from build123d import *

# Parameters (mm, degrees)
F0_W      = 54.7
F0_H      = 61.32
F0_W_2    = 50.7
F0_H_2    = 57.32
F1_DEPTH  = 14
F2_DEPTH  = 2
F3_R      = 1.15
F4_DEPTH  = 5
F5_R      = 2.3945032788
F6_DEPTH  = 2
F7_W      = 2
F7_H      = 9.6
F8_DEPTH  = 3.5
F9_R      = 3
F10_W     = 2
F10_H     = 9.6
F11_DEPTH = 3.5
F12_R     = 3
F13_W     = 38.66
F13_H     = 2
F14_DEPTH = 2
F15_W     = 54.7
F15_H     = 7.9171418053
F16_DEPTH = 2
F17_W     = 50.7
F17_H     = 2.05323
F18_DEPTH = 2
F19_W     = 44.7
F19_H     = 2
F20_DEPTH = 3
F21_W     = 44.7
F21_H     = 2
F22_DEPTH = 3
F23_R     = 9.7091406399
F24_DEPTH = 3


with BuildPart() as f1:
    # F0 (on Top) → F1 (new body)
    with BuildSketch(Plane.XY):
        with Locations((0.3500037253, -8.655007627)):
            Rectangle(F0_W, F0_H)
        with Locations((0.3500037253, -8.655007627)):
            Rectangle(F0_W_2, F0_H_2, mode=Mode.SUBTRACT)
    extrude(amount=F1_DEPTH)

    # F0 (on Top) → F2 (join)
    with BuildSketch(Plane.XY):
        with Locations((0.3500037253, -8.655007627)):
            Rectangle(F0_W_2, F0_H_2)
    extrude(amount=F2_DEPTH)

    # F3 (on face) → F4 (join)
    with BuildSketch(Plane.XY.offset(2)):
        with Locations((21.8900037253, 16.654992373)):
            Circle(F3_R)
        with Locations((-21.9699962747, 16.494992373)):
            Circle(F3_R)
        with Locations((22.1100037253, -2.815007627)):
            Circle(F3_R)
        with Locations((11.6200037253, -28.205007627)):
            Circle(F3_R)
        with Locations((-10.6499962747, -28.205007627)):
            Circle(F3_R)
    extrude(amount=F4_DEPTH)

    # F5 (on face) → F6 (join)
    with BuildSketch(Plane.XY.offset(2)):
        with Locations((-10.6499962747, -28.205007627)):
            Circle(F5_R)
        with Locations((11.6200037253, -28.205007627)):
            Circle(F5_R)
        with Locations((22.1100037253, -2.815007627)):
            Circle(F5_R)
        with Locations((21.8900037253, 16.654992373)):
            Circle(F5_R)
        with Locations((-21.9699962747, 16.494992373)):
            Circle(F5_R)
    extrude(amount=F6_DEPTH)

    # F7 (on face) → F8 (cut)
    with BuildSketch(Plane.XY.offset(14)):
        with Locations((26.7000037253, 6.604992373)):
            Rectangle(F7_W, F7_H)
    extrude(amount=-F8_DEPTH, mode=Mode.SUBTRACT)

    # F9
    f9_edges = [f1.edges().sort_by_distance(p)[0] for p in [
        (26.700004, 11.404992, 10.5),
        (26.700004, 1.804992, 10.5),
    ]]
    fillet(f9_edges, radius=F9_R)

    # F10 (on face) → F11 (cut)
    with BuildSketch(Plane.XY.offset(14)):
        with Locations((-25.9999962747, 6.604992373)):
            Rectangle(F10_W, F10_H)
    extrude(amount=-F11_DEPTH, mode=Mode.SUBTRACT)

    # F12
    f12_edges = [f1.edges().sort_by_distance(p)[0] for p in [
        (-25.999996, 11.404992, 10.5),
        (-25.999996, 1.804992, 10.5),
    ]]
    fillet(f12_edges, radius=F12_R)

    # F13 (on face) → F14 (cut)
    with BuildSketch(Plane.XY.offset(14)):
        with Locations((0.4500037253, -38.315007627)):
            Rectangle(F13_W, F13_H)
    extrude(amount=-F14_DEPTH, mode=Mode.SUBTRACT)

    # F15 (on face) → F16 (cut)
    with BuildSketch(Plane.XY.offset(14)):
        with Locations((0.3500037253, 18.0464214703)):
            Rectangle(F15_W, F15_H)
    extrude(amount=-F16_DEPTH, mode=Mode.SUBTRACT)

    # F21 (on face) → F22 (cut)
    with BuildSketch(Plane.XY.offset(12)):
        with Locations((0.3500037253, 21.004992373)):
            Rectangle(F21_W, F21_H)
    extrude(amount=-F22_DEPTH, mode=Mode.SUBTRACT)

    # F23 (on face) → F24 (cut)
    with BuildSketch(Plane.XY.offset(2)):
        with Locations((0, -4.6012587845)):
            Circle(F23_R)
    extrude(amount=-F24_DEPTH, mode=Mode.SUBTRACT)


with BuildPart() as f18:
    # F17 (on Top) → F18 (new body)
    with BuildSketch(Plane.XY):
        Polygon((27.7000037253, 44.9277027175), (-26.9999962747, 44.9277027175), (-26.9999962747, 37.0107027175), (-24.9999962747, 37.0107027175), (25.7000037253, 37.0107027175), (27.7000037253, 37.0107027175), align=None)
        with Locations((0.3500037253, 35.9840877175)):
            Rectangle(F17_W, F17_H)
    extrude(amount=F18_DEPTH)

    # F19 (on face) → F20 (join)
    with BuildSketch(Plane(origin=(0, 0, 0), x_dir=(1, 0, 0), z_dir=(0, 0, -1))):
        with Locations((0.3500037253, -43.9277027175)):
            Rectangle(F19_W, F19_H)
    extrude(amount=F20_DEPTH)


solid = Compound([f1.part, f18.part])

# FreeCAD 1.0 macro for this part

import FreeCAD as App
import Part
import Sketcher


def edges_at(feature, points):
    """Names of the edges that pass closest to the given points."""
    edges = feature.Shape.Edges
    near = lambda p: min(range(len(edges)), key=lambda i: edges[i].distToShape(Part.Vertex(*p))[0])
    return sorted({f"Edge{near(p) + 1}" for p in points})


def add_polygon(sketch, points):
    """Adds a closed chain of lines whose ends are joined by coincident constraints."""
    first, n = sketch.GeometryCount, len(points)
    for a, b in zip(points, points[1:] + points[:1]):
        sketch.addGeometry(Part.LineSegment(App.Vector(*a, 0), App.Vector(*b, 0)), False)
    for i in range(n):
        sketch.addConstraint(Sketcher.Constraint("Coincident", first + i, 2, first + (i + 1) % n, 1))

doc = App.newDocument("Part")
params = doc.addObject("Spreadsheet::Sheet", "Params")
for row, (alias, value) in enumerate([
    ("sketch1_width", "54.7 mm"),
    ("sketch1_width2", "50.7 mm"),
    ("sketch1_height", "61.32 mm"),
    ("pad1_length", "14 mm"),
    ("sketch2_width", "50.7 mm"),
    ("sketch2_height", "57.32 mm"),
    ("pad2_length", "2 mm"),
    ("sketch3_diameter", "2.3 mm"),
    ("pad3_length", "5 mm"),
    ("pad4_length", "2 mm"),
    ("sketch5_width", "2 mm"),
    ("sketch5_height", "9.6 mm"),
    ("pocket1_length", "3.5 mm"),
    ("fillet_radius", "3 mm"),
    ("sketch6_width", "2 mm"),
    ("sketch6_height", "9.6 mm"),
    ("pocket2_length", "3.5 mm"),
    ("fillet2_radius", "3 mm"),
    ("sketch7_height", "2 mm"),
    ("sketch7_width", "38.66 mm"),
    ("pocket3_length", "2 mm"),
    ("sketch8_width", "54.7 mm"),
    ("pocket4_length", "2 mm"),
    ("sketch9_height", "2 mm"),
    ("sketch9_width", "44.7 mm"),
    ("pocket5_length", "3 mm"),
    ("pocket6_length", "3 mm"),
    ("sketch11_width", "2 mm"),
    ("sketch11_width2", "54.7 mm"),
    ("pad5_length", "2 mm"),
    ("sketch12_height", "2 mm"),
    ("sketch12_width", "44.7 mm"),
    ("pad6_length", "3 mm"),
], start=1):
    params.set(f"A{row}", alias)
    params.set(f"B{row}", "=" + value)
    params.setAlias(f"B{row}", alias)

body = doc.addObject("PartDesign::Body", "Body")

# Sketch on XY plane
sketch1 = body.newObject("Sketcher::SketchObject", "Sketch")
sketch1.AttachmentSupport = (doc.getObject("XY_Plane"), [""])
sketch1.MapMode = "FlatFace"
add_polygon(sketch1, [(-27, 22), (-27, -39), (28, -39), (28, 22)])  # lines 0-3
add_polygon(sketch1, [(26, -37), (-25, -37), (-25, 20), (26, 20)])  # lines 4-7
sketch1.addConstraint([
    Sketcher.Constraint("Vertical", 0),
    Sketcher.Constraint("Horizontal", 1),
    Sketcher.Constraint("Vertical", 2),
    Sketcher.Constraint("Horizontal", 3),
    Sketcher.Constraint("Horizontal", 4),
    Sketcher.Constraint("Vertical", 5),
    Sketcher.Constraint("Horizontal", 6),
    Sketcher.Constraint("Vertical", 7),
    Sketcher.Constraint("DistanceX", 1, 1, 1, 2, 54.7),
    Sketcher.Constraint("DistanceX", 4, 2, 4, 1, 50.7),
    Sketcher.Constraint("DistanceX", 0, 2, 4, 2, 2.0),
    Sketcher.Constraint("DistanceY", 0, 2, 4, 2, 2.0),
    Sketcher.Constraint("DistanceY", 5, 2, 3, 2, 2.0),
    Sketcher.Constraint("DistanceY", 0, 2, 0, 1, 61.32),
    Sketcher.Constraint("DistanceX", 0, 2, -1, 1, 26.999996),
    Sketcher.Constraint("DistanceY", 0, 2, -1, 1, 39.315008),
])
sketch1.setExpression("Constraints[16]", "Params.sketch1_width")
sketch1.setExpression("Constraints[17]", "Params.sketch1_width2")
sketch1.setExpression("Constraints[21]", "Params.sketch1_height")
pad1 = body.newObject("PartDesign::Pad", "Pad")
pad1.Profile = sketch1
pad1.setExpression("Length", "Params.pad1_length")

# Sketch on XY plane
sketch2 = body.newObject("Sketcher::SketchObject", "Sketch001")
sketch2.AttachmentSupport = (doc.getObject("XY_Plane"), [""])
sketch2.MapMode = "FlatFace"
add_polygon(sketch2, [(-25, 20), (-25, -37), (26, -37), (26, 20)])  # lines 0-3
sketch2.addConstraint([
    Sketcher.Constraint("Vertical", 0),
    Sketcher.Constraint("Horizontal", 1),
    Sketcher.Constraint("Vertical", 2),
    Sketcher.Constraint("Horizontal", 3),
    Sketcher.Constraint("DistanceX", 1, 1, 1, 2, 50.7),
    Sketcher.Constraint("DistanceY", 0, 2, 0, 1, 57.32),
    Sketcher.Constraint("DistanceX", 0, 2, -1, 1, 24.999996),
    Sketcher.Constraint("DistanceY", 0, 2, -1, 1, 37.315008),
])
sketch2.setExpression("Constraints[8]", "Params.sketch2_width")
sketch2.setExpression("Constraints[9]", "Params.sketch2_height")
pad2 = body.newObject("PartDesign::Pad", "Pad001")
pad2.Profile = sketch2
pad2.setExpression("Length", "Params.pad2_length")

# Sketch on XY plane
sketch3 = body.newObject("Sketcher::SketchObject", "Sketch002")
sketch3.AttachmentSupport = (doc.getObject("XY_Plane"), [""])
sketch3.MapMode = "FlatFace"
sketch3.AttachmentOffset = App.Placement(App.Vector(0, 0, 2), App.Rotation())
sketch3.addGeometry([
    Part.Circle(App.Vector(21.9, 16.7, 0), App.Vector(0, 0, 1), 1.1),  # 0
    Part.Circle(App.Vector(-22, 16.5, 0), App.Vector(0, 0, 1), 1.1),  # 1
    Part.Circle(App.Vector(22.1, -2.8, 0), App.Vector(0, 0, 1), 1.1),  # 2
    Part.Circle(App.Vector(11.6, -28.2, 0), App.Vector(0, 0, 1), 1.1),  # 3
    Part.Circle(App.Vector(-10.6, -28.2, 0), App.Vector(0, 0, 1), 1.1),  # 4
], False)
sketch3.addConstraint([
    Sketcher.Constraint("Equal", 0, 1),
    Sketcher.Constraint("Equal", 1, 2),
    Sketcher.Constraint("Equal", 2, 3),
    Sketcher.Constraint("Equal", 3, 4),
    Sketcher.Constraint("Horizontal", 3, 3, 4, 3),
    Sketcher.Constraint("Diameter", 0, 2.3),
    Sketcher.Constraint("DistanceY", 3, 3, 1, 3, 44.7),
    Sketcher.Constraint("DistanceX", 1, 3, 0, 3, 43.86),
    Sketcher.Constraint("DistanceY", 1, 3, 0, 3, 0.16),
    Sketcher.Constraint("DistanceX", 0, 3, 2, 3, 0.22),
    Sketcher.Constraint("DistanceY", 2, 3, 0, 3, 19.47),
    Sketcher.Constraint("DistanceX", 3, 3, 2, 3, 10.49),
    Sketcher.Constraint("DistanceX", 4, 3, 3, 3, 22.27),
    Sketcher.Constraint("DistanceX", -1, 1, 0, 3, 21.890004),
    Sketcher.Constraint("DistanceY", -1, 1, 0, 3, 16.654992),
])
sketch3.setExpression("Constraints[5]", "Params.sketch3_diameter")
pad3 = body.newObject("PartDesign::Pad", "Pad002")
pad3.Profile = sketch3
pad3.setExpression("Length", "Params.pad3_length")

# Sketch on XY plane
sketch4 = body.newObject("Sketcher::SketchObject", "Sketch003")
sketch4.AttachmentSupport = (doc.getObject("XY_Plane"), [""])
sketch4.MapMode = "FlatFace"
sketch4.AttachmentOffset = App.Placement(App.Vector(0, 0, 2), App.Rotation())
sketch4.addGeometry([
    Part.Circle(App.Vector(-10.6, -28.2, 0), App.Vector(0, 0, 1), 2.4),  # 0
    Part.Circle(App.Vector(11.6, -28.2, 0), App.Vector(0, 0, 1), 2.4),  # 1
    Part.Circle(App.Vector(22.1, -2.8, 0), App.Vector(0, 0, 1), 2.4),  # 2
    Part.Circle(App.Vector(21.9, 16.7, 0), App.Vector(0, 0, 1), 2.4),  # 3
    Part.Circle(App.Vector(-22, 16.5, 0), App.Vector(0, 0, 1), 2.4),  # 4
], False)
sketch4.addConstraint([
    Sketcher.Constraint("Equal", 0, 1),
    Sketcher.Constraint("Equal", 1, 2),
    Sketcher.Constraint("Equal", 2, 3),
    Sketcher.Constraint("Equal", 3, 4),
    Sketcher.Constraint("Horizontal", 0, 3, 1, 3),
    Sketcher.Constraint("DistanceY", 0, 3, 4, 3, 44.7),
    Sketcher.Constraint("DistanceX", 0, 3, 1, 3, 22.27),
    Sketcher.Constraint("DistanceX", 1, 3, 2, 3, 10.49),
    Sketcher.Constraint("DistanceY", 1, 3, 2, 3, 25.39),
    Sketcher.Constraint("DistanceX", 3, 3, 2, 3, 0.22),
    Sketcher.Constraint("DistanceY", 2, 3, 3, 3, 19.47),
    Sketcher.Constraint("DistanceX", 4, 3, 3, 3, 43.86),
    Sketcher.Constraint("Diameter", 0, 4.789007),
    Sketcher.Constraint("DistanceX", 0, 3, -1, 1, 10.649996),
    Sketcher.Constraint("DistanceY", 0, 3, -1, 1, 28.205008),
])
pad4 = body.newObject("PartDesign::Pad", "Pad003")
pad4.Profile = sketch4
pad4.setExpression("Length", "Params.pad4_length")

# Sketch on XY plane
sketch5 = body.newObject("Sketcher::SketchObject", "Sketch004")
sketch5.AttachmentSupport = (doc.getObject("XY_Plane"), [""])
sketch5.MapMode = "FlatFace"
sketch5.AttachmentOffset = App.Placement(App.Vector(0, 0, 14), App.Rotation())
add_polygon(sketch5, [(25.7, 11.4), (25.7, 1.8), (27.7, 1.8), (27.7, 11.4)])  # lines 0-3
sketch5.addConstraint([
    Sketcher.Constraint("Vertical", 0),
    Sketcher.Constraint("Horizontal", 1),
    Sketcher.Constraint("Vertical", 2),
    Sketcher.Constraint("Horizontal", 3),
    Sketcher.Constraint("DistanceX", 1, 1, 1, 2, 2.0),
    Sketcher.Constraint("DistanceY", 0, 2, 0, 1, 9.6),
    Sketcher.Constraint("DistanceX", -1, 1, 0, 2, 25.700004),
    Sketcher.Constraint("DistanceY", -1, 1, 0, 2, 1.804992),
])
sketch5.setExpression("Constraints[8]", "Params.sketch5_width")
sketch5.setExpression("Constraints[9]", "Params.sketch5_height")
pocket1 = body.newObject("PartDesign::Pocket", "Pocket")
pocket1.Profile = sketch5
pocket1.setExpression("Length", "Params.pocket1_length")
doc.recompute()

fillet = body.newObject("PartDesign::Fillet", "Fillet")
fillet.Base = (pocket1, edges_at(pocket1, [(26.7, 11.405, 10.5), (26.7, 1.805, 10.5)]))
fillet.setExpression("Radius", "Params.fillet_radius")

# Sketch on XY plane
sketch6 = body.newObject("Sketcher::SketchObject", "Sketch005")
sketch6.AttachmentSupport = (doc.getObject("XY_Plane"), [""])
sketch6.MapMode = "FlatFace"
sketch6.AttachmentOffset = App.Placement(App.Vector(0, 0, 14), App.Rotation())
add_polygon(sketch6, [(-27, 11.4), (-27, 1.8), (-25, 1.8), (-25, 11.4)])  # lines 0-3
sketch6.addConstraint([
    Sketcher.Constraint("Vertical", 0),
    Sketcher.Constraint("Horizontal", 1),
    Sketcher.Constraint("Vertical", 2),
    Sketcher.Constraint("Horizontal", 3),
    Sketcher.Constraint("DistanceX", 1, 1, 1, 2, 2.0),
    Sketcher.Constraint("DistanceY", 0, 2, 0, 1, 9.6),
    Sketcher.Constraint("DistanceX", 0, 2, -1, 1, 26.999996),
    Sketcher.Constraint("DistanceY", -1, 1, 0, 2, 1.804992),
])
sketch6.setExpression("Constraints[8]", "Params.sketch6_width")
sketch6.setExpression("Constraints[9]", "Params.sketch6_height")
pocket2 = body.newObject("PartDesign::Pocket", "Pocket001")
pocket2.Profile = sketch6
pocket2.setExpression("Length", "Params.pocket2_length")
doc.recompute()

fillet2 = body.newObject("PartDesign::Fillet", "Fillet001")
fillet2.Base = (pocket2, edges_at(pocket2, [(-26, 11.405, 10.5), (-26, 1.805, 10.5)]))
fillet2.setExpression("Radius", "Params.fillet2_radius")

# Sketch on XY plane
sketch7 = body.newObject("Sketcher::SketchObject", "Sketch006")
sketch7.AttachmentSupport = (doc.getObject("XY_Plane"), [""])
sketch7.MapMode = "FlatFace"
sketch7.AttachmentOffset = App.Placement(App.Vector(0, 0, 14), App.Rotation())
add_polygon(sketch7, [(-18.9, -37.3), (-18.9, -39.3), (19.8, -39.3), (19.8, -37.3)])  # lines 0-3
sketch7.addConstraint([
    Sketcher.Constraint("Vertical", 0),
    Sketcher.Constraint("Horizontal", 1),
    Sketcher.Constraint("Vertical", 2),
    Sketcher.Constraint("Horizontal", 3),
    Sketcher.Constraint("DistanceY", 0, 2, 0, 1, 2.0),
    Sketcher.Constraint("DistanceX", 1, 1, 1, 2, 38.66),
    Sketcher.Constraint("DistanceX", 0, 2, -1, 1, 18.879996),
    Sketcher.Constraint("DistanceY", 0, 2, -1, 1, 39.315008),
])
sketch7.setExpression("Constraints[8]", "Params.sketch7_height")
sketch7.setExpression("Constraints[9]", "Params.sketch7_width")
pocket3 = body.newObject("PartDesign::Pocket", "Pocket002")
pocket3.Profile = sketch7
pocket3.setExpression("Length", "Params.pocket3_length")

# Sketch on XY plane
sketch8 = body.newObject("Sketcher::SketchObject", "Sketch007")
sketch8.AttachmentSupport = (doc.getObject("XY_Plane"), [""])
sketch8.MapMode = "FlatFace"
sketch8.AttachmentOffset = App.Placement(App.Vector(0, 0, 14), App.Rotation())
add_polygon(sketch8, [(-27, 22), (-27, 14), (28, 14), (28, 22)])  # lines 0-3
sketch8.addConstraint([
    Sketcher.Constraint("Vertical", 0),
    Sketcher.Constraint("Horizontal", 1),
    Sketcher.Constraint("Vertical", 2),
    Sketcher.Constraint("Horizontal", 3),
    Sketcher.Constraint("DistanceX", 1, 1, 1, 2, 54.7),
    Sketcher.Constraint("DistanceY", 0, 2, 0, 1, 7.917142),
    Sketcher.Constraint("DistanceY", -1, 1, 0, 2, 14.087851),
    Sketcher.Constraint("DistanceX", 0, 2, -1, 1, 26.999996),
])
sketch8.setExpression("Constraints[8]", "Params.sketch8_width")
pocket4 = body.newObject("PartDesign::Pocket", "Pocket003")
pocket4.Profile = sketch8
pocket4.setExpression("Length", "Params.pocket4_length")

# Sketch on XY plane
sketch9 = body.newObject("Sketcher::SketchObject", "Sketch008")
sketch9.AttachmentSupport = (doc.getObject("XY_Plane"), [""])
sketch9.MapMode = "FlatFace"
sketch9.AttachmentOffset = App.Placement(App.Vector(0, 0, 12), App.Rotation())
add_polygon(sketch9, [(-22, 22), (-22, 20), (22.7, 20), (22.7, 22)])  # lines 0-3
sketch9.addConstraint([
    Sketcher.Constraint("Vertical", 0),
    Sketcher.Constraint("Horizontal", 1),
    Sketcher.Constraint("Vertical", 2),
    Sketcher.Constraint("Horizontal", 3),
    Sketcher.Constraint("DistanceY", 0, 2, 0, 1, 2.0),
    Sketcher.Constraint("DistanceX", 1, 1, 1, 2, 44.7),
    Sketcher.Constraint("DistanceX", 0, 2, -1, 1, 21.999996),
    Sketcher.Constraint("DistanceY", -1, 1, 0, 2, 20.004992),
])
sketch9.setExpression("Constraints[8]", "Params.sketch9_height")
sketch9.setExpression("Constraints[9]", "Params.sketch9_width")
pocket5 = body.newObject("PartDesign::Pocket", "Pocket004")
pocket5.Profile = sketch9
pocket5.setExpression("Length", "Params.pocket5_length")

# Sketch on XY plane
sketch10 = body.newObject("Sketcher::SketchObject", "Sketch009")
sketch10.AttachmentSupport = (doc.getObject("XY_Plane"), [""])
sketch10.MapMode = "FlatFace"
sketch10.AttachmentOffset = App.Placement(App.Vector(0, 0, 2), App.Rotation())
sketch10.addGeometry(Part.Circle(App.Vector(0, -5, 0), App.Vector(0, 0, 1), 10), False)
sketch10.addConstraint([
    Sketcher.Constraint("PointOnObject", 0, 3, -2),
    Sketcher.Constraint("Diameter", 0, 19.418281),
    Sketcher.Constraint("DistanceY", 0, 3, -1, 1, 4.601259),
])
pocket6 = body.newObject("PartDesign::Pocket", "Pocket005")
pocket6.Profile = sketch10
pocket6.setExpression("Length", "Params.pocket6_length")
body2 = doc.addObject("PartDesign::Body", "Body001")

# Sketch on XY plane
sketch11 = body2.newObject("Sketcher::SketchObject", "Sketch010")
sketch11.AttachmentSupport = (doc.getObject("XY_Plane001"), [""])
sketch11.MapMode = "FlatFace"
add_polygon(sketch11, [(27.7, 44.9), (-27, 44.9), (-27, 37), (-25, 37), (-25, 35), (25.7, 35), (25.7, 37), (27.7, 37)])  # lines 0-7
sketch11.addConstraint([
    Sketcher.Constraint("Horizontal", 0),
    Sketcher.Constraint("Vertical", 1),
    Sketcher.Constraint("Horizontal", 2),
    Sketcher.Constraint("Vertical", 3),
    Sketcher.Constraint("Horizontal", 4),
    Sketcher.Constraint("Vertical", 5),
    Sketcher.Constraint("Horizontal", 6),
    Sketcher.Constraint("Vertical", 7),
    Sketcher.Constraint("Horizontal", 2, 2, 5, 2),
    Sketcher.Constraint("Equal", 2, 6),
    Sketcher.Constraint("DistanceX", 2, 1, 2, 2, 2.0),
    Sketcher.Constraint("DistanceX", 0, 2, 0, 1, 54.7),
    Sketcher.Constraint("DistanceY", 1, 2, 1, 1, 7.917),
    Sketcher.Constraint("DistanceY", 3, 2, 3, 1, 2.05323),
    Sketcher.Constraint("DistanceX", 0, 2, -1, 1, 26.999996),
    Sketcher.Constraint("DistanceY", -1, 1, 0, 2, 44.927703),
])
sketch11.setExpression("Constraints[18]", "Params.sketch11_width")
sketch11.setExpression("Constraints[19]", "Params.sketch11_width2")
pad5 = body2.newObject("PartDesign::Pad", "Pad004")
pad5.Profile = sketch11
pad5.setExpression("Length", "Params.pad5_length")

# Sketch on XY plane
sketch12 = body2.newObject("Sketcher::SketchObject", "Sketch011")
sketch12.AttachmentSupport = (doc.getObject("XY_Plane001"), [""])
sketch12.MapMode = "FlatFace"
add_polygon(sketch12, [(-22, 42.9), (-22, 44.9), (22.7, 44.9), (22.7, 42.9)])  # lines 0-3
sketch12.addConstraint([
    Sketcher.Constraint("Vertical", 0),
    Sketcher.Constraint("Horizontal", 1),
    Sketcher.Constraint("Vertical", 2),
    Sketcher.Constraint("Horizontal", 3),
    Sketcher.Constraint("DistanceY", 0, 1, 0, 2, 2.0),
    Sketcher.Constraint("DistanceX", 1, 1, 1, 2, 44.7),
    Sketcher.Constraint("DistanceX", 0, 2, -1, 1, 21.999996),
    Sketcher.Constraint("DistanceY", -1, 1, 0, 2, 44.927703),
])
sketch12.setExpression("Constraints[8]", "Params.sketch12_height")
sketch12.setExpression("Constraints[9]", "Params.sketch12_width")
pad6 = body2.newObject("PartDesign::Pad", "Pad005")
pad6.Profile = sketch12
pad6.setExpression("Length", "Params.pad6_length")
pad6.Reversed = True

doc.recompute()
